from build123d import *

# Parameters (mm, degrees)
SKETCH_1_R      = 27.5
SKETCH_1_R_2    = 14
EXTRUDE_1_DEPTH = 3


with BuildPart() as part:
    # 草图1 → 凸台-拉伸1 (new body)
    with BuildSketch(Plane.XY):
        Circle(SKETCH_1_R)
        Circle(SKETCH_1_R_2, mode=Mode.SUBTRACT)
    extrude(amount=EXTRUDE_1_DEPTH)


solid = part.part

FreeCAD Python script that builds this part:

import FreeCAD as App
import Part
import Sketcher
Q = App.Units.Quantity

doc = App.newDocument("Part")
body = doc.addObject("PartDesign::Body", "Body")

# Sketch on XY plane
sketch1 = doc.addObject("Sketcher::SketchObject", "Sketch")
body.addObject(sketch1)
sketch1.AttachmentSupport = (doc.XY_Plane, [""])
sketch1.MapMode = "FlatFace"
sketch1.addGeometry([
    Part.Circle(App.Vector(0, 0, 0), App.Vector(0, 0, 1), 28),
    Part.Circle(App.Vector(0, 0, 0), App.Vector(0, 0, 1), 14),
], False)
sketch1.addConstraint([
    Sketcher.Constraint("Coincident", 0, 3, -1, 1),
    Sketcher.Constraint("Coincident", 1, 3, -1, 1),
    Sketcher.Constraint("Diameter", 0, Q("55 mm")),
    Sketcher.Constraint("Diameter", 1, Q("28 mm")),
])
pad1 = doc.addObject("PartDesign::Pad", "Pad")
body.addObject(pad1)
pad1.Profile = sketch1
pad1.Length = 3

doc.recompute()
